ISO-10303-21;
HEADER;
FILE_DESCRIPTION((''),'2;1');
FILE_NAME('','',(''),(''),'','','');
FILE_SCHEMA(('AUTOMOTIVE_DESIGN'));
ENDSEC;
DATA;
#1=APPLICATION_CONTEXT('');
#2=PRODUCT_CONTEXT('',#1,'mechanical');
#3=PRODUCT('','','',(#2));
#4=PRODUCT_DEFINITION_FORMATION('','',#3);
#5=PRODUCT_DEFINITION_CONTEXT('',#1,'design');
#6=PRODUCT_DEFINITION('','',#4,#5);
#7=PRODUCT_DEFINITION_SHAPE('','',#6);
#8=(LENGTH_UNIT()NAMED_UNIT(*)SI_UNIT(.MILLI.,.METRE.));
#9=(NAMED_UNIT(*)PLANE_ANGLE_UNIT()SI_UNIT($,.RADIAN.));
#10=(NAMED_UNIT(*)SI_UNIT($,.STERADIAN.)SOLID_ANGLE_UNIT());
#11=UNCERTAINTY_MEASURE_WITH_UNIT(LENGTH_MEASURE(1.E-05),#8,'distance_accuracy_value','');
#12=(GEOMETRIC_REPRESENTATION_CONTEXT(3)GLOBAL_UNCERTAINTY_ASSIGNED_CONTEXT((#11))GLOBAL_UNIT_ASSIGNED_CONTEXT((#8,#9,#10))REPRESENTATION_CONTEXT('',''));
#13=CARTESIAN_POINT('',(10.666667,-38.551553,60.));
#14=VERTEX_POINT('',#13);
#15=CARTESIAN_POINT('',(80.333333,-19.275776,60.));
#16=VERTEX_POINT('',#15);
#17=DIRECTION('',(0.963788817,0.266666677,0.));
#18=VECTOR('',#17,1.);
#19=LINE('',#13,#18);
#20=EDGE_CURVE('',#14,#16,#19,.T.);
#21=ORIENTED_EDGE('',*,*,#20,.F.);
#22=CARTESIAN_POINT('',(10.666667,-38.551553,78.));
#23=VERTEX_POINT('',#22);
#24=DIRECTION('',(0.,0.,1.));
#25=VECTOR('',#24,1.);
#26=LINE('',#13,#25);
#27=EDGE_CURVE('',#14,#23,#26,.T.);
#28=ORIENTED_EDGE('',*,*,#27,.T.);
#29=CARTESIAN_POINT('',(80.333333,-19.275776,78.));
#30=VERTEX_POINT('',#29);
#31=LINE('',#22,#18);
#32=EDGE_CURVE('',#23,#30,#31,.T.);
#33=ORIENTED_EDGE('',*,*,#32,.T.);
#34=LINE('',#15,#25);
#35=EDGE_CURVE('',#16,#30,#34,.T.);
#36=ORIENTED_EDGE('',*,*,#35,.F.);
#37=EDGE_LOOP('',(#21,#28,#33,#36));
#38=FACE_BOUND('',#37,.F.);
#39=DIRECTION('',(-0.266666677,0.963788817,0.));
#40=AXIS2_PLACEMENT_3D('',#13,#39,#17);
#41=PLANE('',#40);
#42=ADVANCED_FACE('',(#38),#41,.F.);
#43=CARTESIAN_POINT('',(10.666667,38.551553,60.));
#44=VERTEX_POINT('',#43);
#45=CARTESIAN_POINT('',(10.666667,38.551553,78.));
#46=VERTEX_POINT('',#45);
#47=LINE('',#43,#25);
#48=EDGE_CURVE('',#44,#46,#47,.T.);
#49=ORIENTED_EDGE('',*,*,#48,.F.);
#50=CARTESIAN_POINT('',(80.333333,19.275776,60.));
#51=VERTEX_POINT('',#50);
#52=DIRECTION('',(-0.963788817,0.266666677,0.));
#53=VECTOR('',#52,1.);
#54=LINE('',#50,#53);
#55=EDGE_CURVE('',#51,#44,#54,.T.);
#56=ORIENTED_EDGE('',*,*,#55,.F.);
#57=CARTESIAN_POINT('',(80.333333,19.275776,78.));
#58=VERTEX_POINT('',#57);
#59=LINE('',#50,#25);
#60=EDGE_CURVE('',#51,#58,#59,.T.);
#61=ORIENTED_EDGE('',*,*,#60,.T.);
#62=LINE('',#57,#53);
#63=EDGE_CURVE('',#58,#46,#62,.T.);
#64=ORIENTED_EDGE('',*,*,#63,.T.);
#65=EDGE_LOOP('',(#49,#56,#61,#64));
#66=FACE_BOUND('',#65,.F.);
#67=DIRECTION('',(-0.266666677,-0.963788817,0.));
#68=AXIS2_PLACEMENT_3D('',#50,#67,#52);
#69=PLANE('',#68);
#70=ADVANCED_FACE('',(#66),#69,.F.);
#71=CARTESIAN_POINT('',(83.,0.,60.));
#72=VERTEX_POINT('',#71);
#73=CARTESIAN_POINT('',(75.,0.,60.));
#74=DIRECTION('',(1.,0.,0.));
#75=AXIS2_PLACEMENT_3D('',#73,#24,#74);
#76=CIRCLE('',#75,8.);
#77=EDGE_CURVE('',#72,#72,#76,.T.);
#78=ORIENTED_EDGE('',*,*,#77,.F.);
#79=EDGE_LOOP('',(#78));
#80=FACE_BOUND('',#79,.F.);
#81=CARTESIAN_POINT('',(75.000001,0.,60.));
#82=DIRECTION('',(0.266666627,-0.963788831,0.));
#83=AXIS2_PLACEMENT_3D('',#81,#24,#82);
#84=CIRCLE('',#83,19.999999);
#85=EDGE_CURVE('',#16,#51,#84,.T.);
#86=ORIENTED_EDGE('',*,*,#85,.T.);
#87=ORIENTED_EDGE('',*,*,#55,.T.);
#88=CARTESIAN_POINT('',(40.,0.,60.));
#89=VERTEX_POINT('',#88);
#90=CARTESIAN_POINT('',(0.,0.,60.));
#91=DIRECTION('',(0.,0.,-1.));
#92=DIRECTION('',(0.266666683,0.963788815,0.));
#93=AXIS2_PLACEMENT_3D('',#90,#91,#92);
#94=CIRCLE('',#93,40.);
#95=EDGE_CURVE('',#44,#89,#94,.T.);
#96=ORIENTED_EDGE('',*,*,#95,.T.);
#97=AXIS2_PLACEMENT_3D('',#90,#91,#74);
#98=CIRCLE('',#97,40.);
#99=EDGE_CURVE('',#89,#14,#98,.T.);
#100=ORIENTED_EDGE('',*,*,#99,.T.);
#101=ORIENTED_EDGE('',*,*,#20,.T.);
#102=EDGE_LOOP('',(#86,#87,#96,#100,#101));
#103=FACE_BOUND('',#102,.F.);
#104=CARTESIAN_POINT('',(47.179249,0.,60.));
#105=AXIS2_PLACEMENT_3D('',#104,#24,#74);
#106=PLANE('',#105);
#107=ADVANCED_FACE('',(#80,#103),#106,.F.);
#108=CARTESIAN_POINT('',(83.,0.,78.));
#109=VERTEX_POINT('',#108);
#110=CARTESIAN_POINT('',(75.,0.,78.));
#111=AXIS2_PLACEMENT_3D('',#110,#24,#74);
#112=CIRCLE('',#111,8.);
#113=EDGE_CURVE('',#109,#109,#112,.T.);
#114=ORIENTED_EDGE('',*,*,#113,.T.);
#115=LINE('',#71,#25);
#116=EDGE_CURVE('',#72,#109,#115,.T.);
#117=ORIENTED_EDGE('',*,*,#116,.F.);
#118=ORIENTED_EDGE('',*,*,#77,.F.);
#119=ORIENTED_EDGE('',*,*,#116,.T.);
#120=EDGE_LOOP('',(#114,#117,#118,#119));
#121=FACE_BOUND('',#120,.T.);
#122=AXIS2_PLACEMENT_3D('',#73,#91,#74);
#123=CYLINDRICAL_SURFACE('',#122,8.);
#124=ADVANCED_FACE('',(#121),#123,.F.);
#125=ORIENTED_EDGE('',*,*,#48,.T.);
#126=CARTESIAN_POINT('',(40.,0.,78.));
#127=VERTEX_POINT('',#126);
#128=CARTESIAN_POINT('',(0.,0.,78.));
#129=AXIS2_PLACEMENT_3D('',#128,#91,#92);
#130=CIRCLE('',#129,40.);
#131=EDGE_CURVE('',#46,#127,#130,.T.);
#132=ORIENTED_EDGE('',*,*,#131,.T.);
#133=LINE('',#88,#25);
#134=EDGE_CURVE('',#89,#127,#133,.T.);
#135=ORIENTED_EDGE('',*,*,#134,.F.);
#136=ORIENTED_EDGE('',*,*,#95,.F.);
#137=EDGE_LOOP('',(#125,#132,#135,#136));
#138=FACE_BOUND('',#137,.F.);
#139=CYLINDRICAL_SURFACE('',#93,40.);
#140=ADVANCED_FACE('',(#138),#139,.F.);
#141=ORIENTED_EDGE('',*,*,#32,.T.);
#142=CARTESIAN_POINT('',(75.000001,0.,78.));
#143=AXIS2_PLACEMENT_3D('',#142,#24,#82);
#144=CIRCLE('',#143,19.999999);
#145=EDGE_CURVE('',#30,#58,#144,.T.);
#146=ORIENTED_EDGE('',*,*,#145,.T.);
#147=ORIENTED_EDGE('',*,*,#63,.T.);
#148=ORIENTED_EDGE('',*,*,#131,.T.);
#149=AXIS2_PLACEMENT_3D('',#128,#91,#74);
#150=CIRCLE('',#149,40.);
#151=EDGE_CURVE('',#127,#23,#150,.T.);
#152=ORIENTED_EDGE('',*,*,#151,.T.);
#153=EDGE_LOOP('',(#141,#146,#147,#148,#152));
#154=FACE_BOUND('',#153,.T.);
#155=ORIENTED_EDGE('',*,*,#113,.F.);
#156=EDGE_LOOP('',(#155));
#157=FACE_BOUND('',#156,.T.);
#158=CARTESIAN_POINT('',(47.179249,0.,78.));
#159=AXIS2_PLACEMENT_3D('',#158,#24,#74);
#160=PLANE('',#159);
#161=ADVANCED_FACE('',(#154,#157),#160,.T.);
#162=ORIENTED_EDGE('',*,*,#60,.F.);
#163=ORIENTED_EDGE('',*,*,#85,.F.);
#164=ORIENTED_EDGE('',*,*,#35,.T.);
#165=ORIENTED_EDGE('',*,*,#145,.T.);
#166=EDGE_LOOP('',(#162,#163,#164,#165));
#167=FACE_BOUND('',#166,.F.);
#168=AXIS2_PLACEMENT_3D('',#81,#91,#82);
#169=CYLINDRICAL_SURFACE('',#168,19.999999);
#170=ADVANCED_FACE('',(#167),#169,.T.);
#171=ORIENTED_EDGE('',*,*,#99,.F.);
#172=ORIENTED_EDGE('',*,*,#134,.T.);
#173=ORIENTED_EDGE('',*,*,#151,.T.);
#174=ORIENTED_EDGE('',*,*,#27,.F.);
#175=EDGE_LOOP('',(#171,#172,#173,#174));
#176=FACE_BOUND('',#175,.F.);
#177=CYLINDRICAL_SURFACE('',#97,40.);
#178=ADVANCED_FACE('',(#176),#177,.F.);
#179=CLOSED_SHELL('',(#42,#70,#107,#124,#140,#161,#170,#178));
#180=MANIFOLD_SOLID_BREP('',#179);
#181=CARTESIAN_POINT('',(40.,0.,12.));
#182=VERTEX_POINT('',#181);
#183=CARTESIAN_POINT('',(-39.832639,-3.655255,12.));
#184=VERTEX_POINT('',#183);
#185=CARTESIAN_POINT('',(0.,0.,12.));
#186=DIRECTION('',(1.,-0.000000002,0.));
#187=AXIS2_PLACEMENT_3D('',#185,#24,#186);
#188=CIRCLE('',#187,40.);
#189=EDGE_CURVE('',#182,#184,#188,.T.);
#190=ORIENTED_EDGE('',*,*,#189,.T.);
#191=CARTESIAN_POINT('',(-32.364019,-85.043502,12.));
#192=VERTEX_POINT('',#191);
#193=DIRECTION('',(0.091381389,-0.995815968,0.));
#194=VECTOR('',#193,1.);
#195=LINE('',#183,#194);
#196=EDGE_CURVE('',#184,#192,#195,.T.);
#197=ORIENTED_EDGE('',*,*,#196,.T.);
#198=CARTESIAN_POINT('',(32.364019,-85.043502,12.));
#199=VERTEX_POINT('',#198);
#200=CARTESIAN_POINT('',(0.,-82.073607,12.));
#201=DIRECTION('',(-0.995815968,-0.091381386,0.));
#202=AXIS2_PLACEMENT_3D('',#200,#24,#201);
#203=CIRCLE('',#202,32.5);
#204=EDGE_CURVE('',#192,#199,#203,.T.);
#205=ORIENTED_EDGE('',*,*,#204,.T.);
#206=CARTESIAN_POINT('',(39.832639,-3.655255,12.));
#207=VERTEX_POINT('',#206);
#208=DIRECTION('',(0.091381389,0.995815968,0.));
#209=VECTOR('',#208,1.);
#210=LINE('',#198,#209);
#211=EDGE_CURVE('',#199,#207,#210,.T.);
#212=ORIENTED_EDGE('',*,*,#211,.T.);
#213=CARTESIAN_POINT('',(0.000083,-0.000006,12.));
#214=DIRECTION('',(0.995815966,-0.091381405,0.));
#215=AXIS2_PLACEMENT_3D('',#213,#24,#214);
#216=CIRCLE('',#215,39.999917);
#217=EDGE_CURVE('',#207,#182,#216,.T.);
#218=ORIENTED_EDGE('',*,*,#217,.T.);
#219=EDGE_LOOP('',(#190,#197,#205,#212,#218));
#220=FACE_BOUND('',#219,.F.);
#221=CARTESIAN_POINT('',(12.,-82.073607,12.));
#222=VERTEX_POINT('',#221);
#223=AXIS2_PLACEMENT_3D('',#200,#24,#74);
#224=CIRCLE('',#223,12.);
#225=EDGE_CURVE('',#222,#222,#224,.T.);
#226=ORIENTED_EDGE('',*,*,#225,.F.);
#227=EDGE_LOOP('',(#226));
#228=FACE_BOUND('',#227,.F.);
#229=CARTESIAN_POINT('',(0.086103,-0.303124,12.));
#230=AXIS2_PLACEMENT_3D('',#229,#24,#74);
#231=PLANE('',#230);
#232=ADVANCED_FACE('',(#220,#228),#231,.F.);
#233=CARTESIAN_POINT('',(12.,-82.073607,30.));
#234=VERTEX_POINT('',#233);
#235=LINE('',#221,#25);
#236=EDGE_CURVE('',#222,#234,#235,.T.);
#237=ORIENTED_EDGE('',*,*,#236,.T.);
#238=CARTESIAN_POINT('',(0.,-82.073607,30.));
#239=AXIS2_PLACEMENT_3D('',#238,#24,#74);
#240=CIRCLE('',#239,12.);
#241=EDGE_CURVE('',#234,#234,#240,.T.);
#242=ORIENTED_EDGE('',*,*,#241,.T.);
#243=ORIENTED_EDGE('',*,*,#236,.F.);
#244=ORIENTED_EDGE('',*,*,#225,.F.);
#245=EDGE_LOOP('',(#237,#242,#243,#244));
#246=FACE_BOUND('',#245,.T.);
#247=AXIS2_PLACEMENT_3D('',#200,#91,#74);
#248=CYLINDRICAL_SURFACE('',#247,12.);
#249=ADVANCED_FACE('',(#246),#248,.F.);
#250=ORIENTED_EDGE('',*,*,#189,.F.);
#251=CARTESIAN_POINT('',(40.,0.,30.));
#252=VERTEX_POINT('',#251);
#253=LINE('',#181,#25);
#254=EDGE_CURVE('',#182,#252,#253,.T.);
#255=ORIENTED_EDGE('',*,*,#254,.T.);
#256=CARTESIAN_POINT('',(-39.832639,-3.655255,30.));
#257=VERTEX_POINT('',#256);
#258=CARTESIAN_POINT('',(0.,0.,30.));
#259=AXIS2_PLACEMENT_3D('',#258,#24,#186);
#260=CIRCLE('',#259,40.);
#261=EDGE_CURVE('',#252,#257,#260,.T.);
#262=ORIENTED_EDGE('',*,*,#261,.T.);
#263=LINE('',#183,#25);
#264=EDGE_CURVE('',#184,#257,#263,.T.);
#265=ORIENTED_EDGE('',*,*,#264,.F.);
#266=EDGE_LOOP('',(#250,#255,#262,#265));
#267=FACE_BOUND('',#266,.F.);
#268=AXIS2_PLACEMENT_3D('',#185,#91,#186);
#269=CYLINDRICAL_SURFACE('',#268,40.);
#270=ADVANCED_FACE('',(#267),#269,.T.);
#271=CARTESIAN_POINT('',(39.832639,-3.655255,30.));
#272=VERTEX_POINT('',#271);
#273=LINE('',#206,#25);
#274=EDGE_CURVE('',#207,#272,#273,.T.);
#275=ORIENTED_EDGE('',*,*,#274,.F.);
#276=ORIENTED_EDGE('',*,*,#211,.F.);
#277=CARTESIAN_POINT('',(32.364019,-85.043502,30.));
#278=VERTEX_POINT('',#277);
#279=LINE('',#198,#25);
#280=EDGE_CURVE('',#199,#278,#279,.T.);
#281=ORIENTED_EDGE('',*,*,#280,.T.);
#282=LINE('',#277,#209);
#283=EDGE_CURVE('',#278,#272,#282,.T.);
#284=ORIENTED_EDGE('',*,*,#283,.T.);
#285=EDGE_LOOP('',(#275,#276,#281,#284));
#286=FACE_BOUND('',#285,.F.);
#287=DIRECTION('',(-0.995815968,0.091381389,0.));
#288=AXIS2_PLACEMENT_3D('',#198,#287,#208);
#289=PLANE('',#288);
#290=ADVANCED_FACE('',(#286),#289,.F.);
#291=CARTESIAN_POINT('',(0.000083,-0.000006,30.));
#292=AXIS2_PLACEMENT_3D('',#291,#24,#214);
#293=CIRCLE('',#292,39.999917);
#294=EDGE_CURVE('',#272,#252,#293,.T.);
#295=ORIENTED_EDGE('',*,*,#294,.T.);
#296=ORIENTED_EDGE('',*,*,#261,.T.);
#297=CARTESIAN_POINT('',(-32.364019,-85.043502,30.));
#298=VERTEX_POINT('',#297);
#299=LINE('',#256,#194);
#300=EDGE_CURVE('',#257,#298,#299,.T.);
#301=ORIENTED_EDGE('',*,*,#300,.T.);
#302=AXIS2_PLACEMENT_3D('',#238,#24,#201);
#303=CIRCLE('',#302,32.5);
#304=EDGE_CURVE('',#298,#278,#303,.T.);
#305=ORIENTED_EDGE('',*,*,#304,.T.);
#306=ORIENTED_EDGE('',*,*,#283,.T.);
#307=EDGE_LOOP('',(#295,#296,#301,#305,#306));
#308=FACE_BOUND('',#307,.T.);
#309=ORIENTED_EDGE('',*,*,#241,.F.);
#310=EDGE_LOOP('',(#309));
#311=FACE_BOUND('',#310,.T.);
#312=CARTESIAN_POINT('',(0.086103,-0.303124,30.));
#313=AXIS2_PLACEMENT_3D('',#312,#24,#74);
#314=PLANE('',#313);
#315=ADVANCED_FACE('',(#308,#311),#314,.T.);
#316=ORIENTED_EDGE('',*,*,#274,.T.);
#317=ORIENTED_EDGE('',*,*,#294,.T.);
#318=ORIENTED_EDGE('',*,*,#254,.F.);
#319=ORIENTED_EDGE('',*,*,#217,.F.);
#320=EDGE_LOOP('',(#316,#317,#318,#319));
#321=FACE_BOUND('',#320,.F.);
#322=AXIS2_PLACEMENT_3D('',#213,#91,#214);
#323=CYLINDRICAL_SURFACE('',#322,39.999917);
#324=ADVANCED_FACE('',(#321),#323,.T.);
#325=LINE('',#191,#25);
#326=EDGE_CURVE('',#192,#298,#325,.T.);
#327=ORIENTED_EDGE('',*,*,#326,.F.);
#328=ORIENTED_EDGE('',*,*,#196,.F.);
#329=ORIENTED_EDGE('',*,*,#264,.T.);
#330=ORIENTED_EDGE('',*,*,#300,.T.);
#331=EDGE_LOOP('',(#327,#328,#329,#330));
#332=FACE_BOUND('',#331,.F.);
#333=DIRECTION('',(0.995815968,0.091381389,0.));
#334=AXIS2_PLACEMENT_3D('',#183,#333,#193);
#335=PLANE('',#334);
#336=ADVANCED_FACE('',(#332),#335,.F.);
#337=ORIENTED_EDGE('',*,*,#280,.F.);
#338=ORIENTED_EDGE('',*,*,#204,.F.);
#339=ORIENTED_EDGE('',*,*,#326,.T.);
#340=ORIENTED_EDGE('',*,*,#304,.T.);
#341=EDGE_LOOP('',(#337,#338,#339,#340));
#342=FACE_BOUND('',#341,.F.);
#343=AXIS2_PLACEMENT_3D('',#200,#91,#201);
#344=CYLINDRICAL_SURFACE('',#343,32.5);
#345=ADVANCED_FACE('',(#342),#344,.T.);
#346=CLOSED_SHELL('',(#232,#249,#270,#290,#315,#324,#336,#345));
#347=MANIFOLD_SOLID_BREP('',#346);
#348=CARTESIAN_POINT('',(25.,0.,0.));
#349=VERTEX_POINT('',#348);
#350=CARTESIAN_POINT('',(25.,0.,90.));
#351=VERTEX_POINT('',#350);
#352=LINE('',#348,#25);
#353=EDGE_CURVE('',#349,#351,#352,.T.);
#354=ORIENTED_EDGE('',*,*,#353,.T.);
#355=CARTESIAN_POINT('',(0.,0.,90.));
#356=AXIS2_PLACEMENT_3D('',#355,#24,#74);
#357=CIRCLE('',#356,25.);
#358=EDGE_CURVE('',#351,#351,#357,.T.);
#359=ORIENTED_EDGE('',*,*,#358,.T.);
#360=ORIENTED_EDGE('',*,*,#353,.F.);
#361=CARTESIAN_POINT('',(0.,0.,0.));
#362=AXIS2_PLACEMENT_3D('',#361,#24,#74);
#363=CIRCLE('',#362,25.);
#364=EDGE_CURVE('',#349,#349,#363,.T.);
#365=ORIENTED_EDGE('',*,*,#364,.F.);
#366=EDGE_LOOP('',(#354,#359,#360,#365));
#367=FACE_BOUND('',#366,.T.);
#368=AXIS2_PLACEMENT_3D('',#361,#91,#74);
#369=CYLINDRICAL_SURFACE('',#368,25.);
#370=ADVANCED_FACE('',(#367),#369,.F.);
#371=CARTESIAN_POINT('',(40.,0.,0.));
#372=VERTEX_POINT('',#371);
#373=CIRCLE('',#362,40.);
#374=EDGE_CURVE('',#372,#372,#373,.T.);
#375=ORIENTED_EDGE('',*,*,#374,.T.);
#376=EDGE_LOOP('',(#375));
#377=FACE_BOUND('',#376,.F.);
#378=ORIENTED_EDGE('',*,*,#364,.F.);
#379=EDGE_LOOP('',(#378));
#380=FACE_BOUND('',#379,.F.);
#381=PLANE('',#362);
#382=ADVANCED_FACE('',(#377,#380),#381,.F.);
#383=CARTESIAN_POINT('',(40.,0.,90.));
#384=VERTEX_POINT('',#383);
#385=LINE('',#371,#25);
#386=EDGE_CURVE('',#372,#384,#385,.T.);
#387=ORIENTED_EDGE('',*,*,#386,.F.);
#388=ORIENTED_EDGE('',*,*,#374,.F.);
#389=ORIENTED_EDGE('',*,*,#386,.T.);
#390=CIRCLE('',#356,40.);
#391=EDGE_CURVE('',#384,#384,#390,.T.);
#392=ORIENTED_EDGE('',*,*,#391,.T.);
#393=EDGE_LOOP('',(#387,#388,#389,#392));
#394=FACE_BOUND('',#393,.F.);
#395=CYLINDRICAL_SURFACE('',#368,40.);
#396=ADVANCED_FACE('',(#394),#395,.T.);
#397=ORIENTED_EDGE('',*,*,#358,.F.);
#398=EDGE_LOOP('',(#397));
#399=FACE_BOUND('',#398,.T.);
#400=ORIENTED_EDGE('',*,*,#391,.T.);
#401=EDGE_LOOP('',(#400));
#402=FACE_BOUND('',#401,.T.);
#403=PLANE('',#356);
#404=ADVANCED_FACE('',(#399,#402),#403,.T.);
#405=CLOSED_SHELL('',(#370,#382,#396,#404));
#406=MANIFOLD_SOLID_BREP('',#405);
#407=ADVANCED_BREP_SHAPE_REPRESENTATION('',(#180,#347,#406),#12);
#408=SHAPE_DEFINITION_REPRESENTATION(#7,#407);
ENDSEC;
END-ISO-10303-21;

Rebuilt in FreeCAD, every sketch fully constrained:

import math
import FreeCAD as App
import Part
import Sketcher
from FreeCAD import Vector
Q = App.Units.Quantity

doc = App.newDocument("Part")
body = doc.addObject("PartDesign::Body", "Body")

# Sketch on XY plane
sketch1 = doc.addObject("Sketcher::SketchObject", "Sketch")
body.addObject(sketch1)
sketch1.AttachmentSupport = (doc.XY_Plane, [""])
sketch1.MapMode = "FlatFace"
sketch1.addGeometry([
    Part.Circle(Vector(0, 0, 0), Vector(0, 0, 1), 40),
    Part.Circle(Vector(0, 0, 0), Vector(0, 0, 1), 25),
], False)
sketch1.addConstraint([
    Sketcher.Constraint("Coincident", 0, 3, -1, 1),
    Sketcher.Constraint("Coincident", 1, 3, -1, 1),
    Sketcher.Constraint("Diameter", 0, Q("80 mm")),
    Sketcher.Constraint("Diameter", 1, Q("50 mm")),
])
pad1 = doc.addObject("PartDesign::Pad", "Pad")
body.addObject(pad1)
pad1.Profile = sketch1
pad1.Length = 90
body2 = doc.addObject("PartDesign::Body", "Body001")

# Sketch on XY plane
sketch2 = doc.addObject("Sketcher::SketchObject", "Sketch001")
body2.addObject(sketch2)
sketch2.AttachmentSupport = (doc.getObject("XY_Plane001"), [""])
sketch2.MapMode = "FlatFace"
sketch2.addGeometry([
    Part.LineSegment(Vector(10.666667, -38.551553, 0), Vector(80.333333, -19.275776, 0)),  # 0
    Part.ArcOfCircle(Part.Circle(Vector(75.000001, 0, 0), Vector(0, 0, 1), 19.999999), math.radians(-74.533992), math.radians(74.533992)),  # 1
    Part.LineSegment(Vector(80.333333, 19.275776, 0), Vector(10.666667, 38.551553, 0)),  # 2
    Part.ArcOfCircle(Part.Circle(Vector(0, 0, 0), Vector(0, 0, 1), 40), math.radians(0), math.radians(74.533989)),  # 3
    Part.ArcOfCircle(Part.Circle(Vector(0, 0, 0), Vector(0, 0, 1), 40), math.radians(-74.533989), math.radians(0)),  # 4
    Part.Circle(Vector(75, 0, 0), Vector(0, 0, 1), 8),  # 5
], False)
sketch2.addConstraint([
    Sketcher.Constraint("Tangent", 0, 2, 1, 1),
    Sketcher.Constraint("Tangent", 1, 2, 2, 1),
    Sketcher.Constraint("Tangent", 2, 2, 3, 2),
    Sketcher.Constraint("Tangent", 3, 1, 4, 2),
    Sketcher.Constraint("Tangent", 4, 1, 0, 1),
    Sketcher.Constraint("Coincident", 3, 3, -1, 1),
    Sketcher.Constraint("Coincident", 5, 3, 1, 3),
    Sketcher.Constraint("Equal", 3, 4),
    Sketcher.Constraint("PointOnObject", 1, 3, -1),
    Sketcher.Constraint("PointOnObject", 3, 1, -1),
    Sketcher.Constraint("Diameter", 5, Q("16 mm")),
    Sketcher.Constraint("Radius", 1, Q("19.999999 mm")),
    Sketcher.Constraint("Radius", 3, Q("40 mm")),
    Sketcher.Constraint("DistanceX", -1, 1, 1, 3, Q("75.000001 mm")),
])
pad2 = doc.addObject("PartDesign::Pad", "Pad001")
body2.addObject(pad2)
pad2.Profile = sketch2
pad2.Length = 18
body3 = doc.addObject("PartDesign::Body", "Body002")
doc.recompute()

body2.Placement = App.Placement(Vector(0, 0, 60), App.Rotation(Vector(0, 0, 1), 0))
boolean = doc.addObject("PartDesign::Boolean", "Boolean")
body3.addObject(boolean)
boolean.Type = "Fuse"
boolean.addObjects([body2])
body4 = doc.addObject("PartDesign::Body", "Body003")

# Sketch on XY plane
sketch3 = doc.addObject("Sketcher::SketchObject", "Sketch002")
body4.addObject(sketch3)
sketch3.AttachmentSupport = (doc.getObject("XY_Plane003"), [""])
sketch3.MapMode = "FlatFace"
sketch3.addGeometry([
    Part.ArcOfCircle(Part.Circle(Vector(0.000083, -0.000006, 0), Vector(0, 0, 1), 39.999917), math.radians(-5.243083), math.radians(0.000009)),  # 0
    Part.ArcOfCircle(Part.Circle(Vector(0, 0, 0), Vector(0, 0, 1), 40), math.radians(0), math.radians(185.243082)),  # 1
    Part.LineSegment(Vector(-39.832639, -3.655255, 0), Vector(-32.364019, -85.043502, 0)),  # 2
    Part.ArcOfCircle(Part.Circle(Vector(0, -82.073607, 0), Vector(0, 0, 1), 32.5), math.radians(-174.756918), math.radians(-5.243082)),  # 3
    Part.LineSegment(Vector(32.364019, -85.043502, 0), Vector(39.832639, -3.655255, 0)),  # 4
    Part.Circle(Vector(0, -82.073607, 0), Vector(0, 0, 1), 12),  # 5
], False)
sketch3.addConstraint([
    Sketcher.Constraint("Coincident", 0, 2, 1, 1),
    Sketcher.Constraint("Coincident", 1, 2, 2, 1),
    Sketcher.Constraint("Coincident", 2, 2, 3, 1),
    Sketcher.Constraint("Coincident", 3, 2, 4, 1),
    Sketcher.Constraint("Coincident", 4, 2, 0, 1),
    Sketcher.Constraint("Coincident", 1, 3, -1, 1),
    Sketcher.Constraint("Coincident", 5, 3, 3, 3),
    Sketcher.Constraint("PointOnObject", 3, 3, -2),
    Sketcher.Constraint("PointOnObject", 0, 2, -1),
    Sketcher.Constraint("Diameter", 5, Q("24 mm")),
    Sketcher.Constraint("Radius", 1, Q("40 mm")),
    Sketcher.Constraint("Radius", 3, Q("32.5 mm")),
    Sketcher.Constraint("Radius", 0, Q("39.999917 mm")),
    Sketcher.Constraint("DistanceY", 3, 2, -1, 1, Q("85.043502 mm")),
    Sketcher.Constraint("DistanceY", 3, 3, 0, 3, Q("82.073601 mm")),
    Sketcher.Constraint("DistanceX", 2, 2, 0, 3, Q("32.364102 mm")),
    Sketcher.Constraint("Distance", 2, Q("81.730209 mm")),
    Sketcher.Constraint("Distance", 4, Q("81.730209 mm")),
    Sketcher.Constraint("DistanceX", 1, 2, -1, 1, Q("39.832639 mm")),
])
pad3 = doc.addObject("PartDesign::Pad", "Pad002")
body4.addObject(pad3)
pad3.Profile = sketch3
pad3.Length = 18
body5 = doc.addObject("PartDesign::Body", "Body004")
doc.recompute()

body4.Placement = App.Placement(Vector(0, 0, 12), App.Rotation(Vector(0, 0, 1), 0))
boolean2 = doc.addObject("PartDesign::Boolean", "Boolean001")
body5.addObject(boolean2)
boolean2.Type = "Fuse"
boolean2.addObjects([body4])

doc.recompute()
